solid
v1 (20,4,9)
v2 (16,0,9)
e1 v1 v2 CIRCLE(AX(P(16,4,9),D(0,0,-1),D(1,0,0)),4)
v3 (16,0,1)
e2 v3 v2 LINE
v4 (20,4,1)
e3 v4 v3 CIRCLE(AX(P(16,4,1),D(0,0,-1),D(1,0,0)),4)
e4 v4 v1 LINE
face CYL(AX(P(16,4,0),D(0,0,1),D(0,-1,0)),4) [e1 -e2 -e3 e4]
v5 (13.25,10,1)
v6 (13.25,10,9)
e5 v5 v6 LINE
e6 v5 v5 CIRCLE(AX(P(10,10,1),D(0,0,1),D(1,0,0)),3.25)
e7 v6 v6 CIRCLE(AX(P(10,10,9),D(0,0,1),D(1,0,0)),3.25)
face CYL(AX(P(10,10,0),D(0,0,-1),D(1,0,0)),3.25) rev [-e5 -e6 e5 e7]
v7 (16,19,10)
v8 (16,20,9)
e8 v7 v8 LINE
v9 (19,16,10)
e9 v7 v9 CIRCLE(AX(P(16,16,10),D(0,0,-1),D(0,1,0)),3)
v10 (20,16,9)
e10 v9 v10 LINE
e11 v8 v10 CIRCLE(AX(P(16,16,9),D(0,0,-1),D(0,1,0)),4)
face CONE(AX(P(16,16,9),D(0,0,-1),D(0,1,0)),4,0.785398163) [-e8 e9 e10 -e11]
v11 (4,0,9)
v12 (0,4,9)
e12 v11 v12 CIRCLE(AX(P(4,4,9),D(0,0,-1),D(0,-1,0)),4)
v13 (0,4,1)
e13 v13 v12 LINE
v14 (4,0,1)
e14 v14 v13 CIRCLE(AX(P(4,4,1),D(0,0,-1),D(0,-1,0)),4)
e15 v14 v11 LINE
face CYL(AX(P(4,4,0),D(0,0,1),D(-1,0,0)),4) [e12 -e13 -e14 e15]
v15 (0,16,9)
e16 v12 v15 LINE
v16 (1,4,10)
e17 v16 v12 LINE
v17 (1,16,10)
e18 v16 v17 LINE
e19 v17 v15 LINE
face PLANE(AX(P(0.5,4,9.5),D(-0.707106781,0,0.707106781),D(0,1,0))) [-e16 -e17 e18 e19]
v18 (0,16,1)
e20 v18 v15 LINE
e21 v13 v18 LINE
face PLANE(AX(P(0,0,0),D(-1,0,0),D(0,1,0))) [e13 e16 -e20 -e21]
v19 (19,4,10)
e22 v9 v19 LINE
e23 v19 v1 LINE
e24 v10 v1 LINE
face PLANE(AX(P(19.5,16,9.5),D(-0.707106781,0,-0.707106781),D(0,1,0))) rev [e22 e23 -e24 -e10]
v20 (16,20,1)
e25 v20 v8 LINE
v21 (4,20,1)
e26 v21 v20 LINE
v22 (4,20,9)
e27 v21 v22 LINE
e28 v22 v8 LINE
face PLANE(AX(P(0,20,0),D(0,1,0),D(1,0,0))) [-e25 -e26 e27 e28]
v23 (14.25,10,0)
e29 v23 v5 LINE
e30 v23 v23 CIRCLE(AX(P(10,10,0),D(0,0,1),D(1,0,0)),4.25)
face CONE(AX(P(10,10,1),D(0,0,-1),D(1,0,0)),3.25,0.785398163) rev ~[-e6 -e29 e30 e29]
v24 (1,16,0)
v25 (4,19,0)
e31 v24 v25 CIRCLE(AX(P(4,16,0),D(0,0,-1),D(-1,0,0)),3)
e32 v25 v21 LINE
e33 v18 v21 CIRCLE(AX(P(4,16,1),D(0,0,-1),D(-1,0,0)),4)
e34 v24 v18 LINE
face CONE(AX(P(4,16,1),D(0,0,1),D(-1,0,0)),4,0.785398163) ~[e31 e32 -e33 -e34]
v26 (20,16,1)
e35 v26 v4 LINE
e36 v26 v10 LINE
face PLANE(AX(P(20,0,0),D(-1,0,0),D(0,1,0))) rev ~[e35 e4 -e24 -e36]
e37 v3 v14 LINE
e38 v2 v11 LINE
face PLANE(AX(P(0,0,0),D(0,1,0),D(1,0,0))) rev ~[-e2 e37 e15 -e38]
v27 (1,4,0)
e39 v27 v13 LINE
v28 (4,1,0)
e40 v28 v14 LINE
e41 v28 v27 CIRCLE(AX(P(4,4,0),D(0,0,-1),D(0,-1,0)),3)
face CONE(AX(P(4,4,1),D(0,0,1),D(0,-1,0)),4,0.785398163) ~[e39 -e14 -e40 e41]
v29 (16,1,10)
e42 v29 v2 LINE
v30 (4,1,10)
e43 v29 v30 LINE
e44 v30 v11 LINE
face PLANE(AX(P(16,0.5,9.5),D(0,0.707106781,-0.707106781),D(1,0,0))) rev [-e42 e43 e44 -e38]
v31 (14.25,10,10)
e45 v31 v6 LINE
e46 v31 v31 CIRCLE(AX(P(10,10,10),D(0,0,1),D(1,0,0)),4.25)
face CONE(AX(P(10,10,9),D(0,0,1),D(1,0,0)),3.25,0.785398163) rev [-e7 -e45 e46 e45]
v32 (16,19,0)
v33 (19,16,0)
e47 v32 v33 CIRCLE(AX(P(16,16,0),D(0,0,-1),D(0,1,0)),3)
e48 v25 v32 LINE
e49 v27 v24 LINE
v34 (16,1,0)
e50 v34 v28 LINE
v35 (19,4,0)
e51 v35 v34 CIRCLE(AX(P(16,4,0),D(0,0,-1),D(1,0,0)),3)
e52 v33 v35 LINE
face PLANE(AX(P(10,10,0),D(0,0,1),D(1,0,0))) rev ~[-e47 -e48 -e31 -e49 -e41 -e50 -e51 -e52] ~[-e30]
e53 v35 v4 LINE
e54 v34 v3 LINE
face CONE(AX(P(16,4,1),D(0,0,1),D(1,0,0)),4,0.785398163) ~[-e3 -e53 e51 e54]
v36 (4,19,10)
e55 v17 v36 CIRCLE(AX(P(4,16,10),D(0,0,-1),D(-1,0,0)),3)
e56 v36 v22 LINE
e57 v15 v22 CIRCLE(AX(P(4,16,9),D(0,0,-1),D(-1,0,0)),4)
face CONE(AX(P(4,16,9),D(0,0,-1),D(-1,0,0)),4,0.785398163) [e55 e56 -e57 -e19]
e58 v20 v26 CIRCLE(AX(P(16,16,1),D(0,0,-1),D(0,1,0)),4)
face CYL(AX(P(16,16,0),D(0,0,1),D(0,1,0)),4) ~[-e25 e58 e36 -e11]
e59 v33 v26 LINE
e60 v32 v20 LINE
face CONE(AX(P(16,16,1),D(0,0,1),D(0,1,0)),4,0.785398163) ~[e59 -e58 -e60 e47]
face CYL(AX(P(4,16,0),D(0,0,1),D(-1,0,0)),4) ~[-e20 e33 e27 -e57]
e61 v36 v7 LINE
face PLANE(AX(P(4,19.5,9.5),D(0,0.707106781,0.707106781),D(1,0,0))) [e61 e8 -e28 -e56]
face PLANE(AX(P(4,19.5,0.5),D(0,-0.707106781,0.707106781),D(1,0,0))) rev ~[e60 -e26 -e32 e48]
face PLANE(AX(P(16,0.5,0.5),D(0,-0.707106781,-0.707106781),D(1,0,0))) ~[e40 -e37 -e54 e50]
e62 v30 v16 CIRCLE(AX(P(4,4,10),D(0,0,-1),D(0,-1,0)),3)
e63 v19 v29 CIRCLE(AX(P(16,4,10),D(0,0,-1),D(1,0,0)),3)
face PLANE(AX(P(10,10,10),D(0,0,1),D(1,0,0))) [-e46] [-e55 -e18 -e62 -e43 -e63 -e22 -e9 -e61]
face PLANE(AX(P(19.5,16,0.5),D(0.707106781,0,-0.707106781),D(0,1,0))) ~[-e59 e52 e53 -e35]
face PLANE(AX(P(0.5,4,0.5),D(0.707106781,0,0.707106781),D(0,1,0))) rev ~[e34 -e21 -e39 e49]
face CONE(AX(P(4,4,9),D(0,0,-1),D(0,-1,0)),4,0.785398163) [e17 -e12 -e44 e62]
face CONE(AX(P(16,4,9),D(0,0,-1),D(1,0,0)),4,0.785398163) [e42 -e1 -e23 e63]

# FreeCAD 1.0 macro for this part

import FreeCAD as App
import Part
import Sketcher

V = App.Vector


def edges_at(feature, points):
    """Names of the edges that pass closest to the given points."""
    edges = feature.Shape.Edges
    near = lambda p: min(range(len(edges)), key=lambda i: edges[i].distToShape(Part.Vertex(*p))[0])
    return sorted({f"Edge{near(p) + 1}" for p in points})


def add_polygon(sketch, points):
    """Adds a closed chain of lines whose ends are joined by coincident constraints."""
    first, n = sketch.GeometryCount, len(points)
    for a, b in zip(points, points[1:] + points[:1]):
        sketch.addGeometry(Part.LineSegment(App.Vector(*a, 0), App.Vector(*b, 0)), False)
    for i in range(n):
        sketch.addConstraint(Sketcher.Constraint("Coincident", first + i, 2, first + (i + 1) % n, 1))

doc = App.newDocument("Part")
body = doc.addObject("PartDesign::Body", "Body")

# Sketch on XY plane
sketch1 = doc.addObject("Sketcher::SketchObject", "Sketch")
body.addObject(sketch1)
sketch1.AttachmentSupport = (doc.XY_Plane, [""])
sketch1.MapMode = "FlatFace"
add_polygon(sketch1, [(0, 20), (0, 0), (20, 0), (20, 20)])  # lines 0-3
sketch1.addGeometry(Part.Circle(V(10, 10, 0), V(0, 0, 1), 3.2), False)  # 4
sketch1.addConstraint([
    Sketcher.Constraint("Vertical", 0),
    Sketcher.Constraint("Horizontal", 1),
    Sketcher.Constraint("Vertical", 2),
    Sketcher.Constraint("Horizontal", 3),
    Sketcher.Constraint("Coincident", 0, 2, -1, 1),
    Sketcher.Constraint("Equal", 3, 0),
    Sketcher.Constraint("Diameter", 4, 6.5),
    Sketcher.Constraint("DistanceX", 1, 1, 1, 2, 20.0),
    Sketcher.Constraint("DistanceX", -1, 1, 4, 3, 10.0),
    Sketcher.Constraint("DistanceY", -1, 1, 4, 3, 10.0),
])
pad1 = doc.addObject("PartDesign::Pad", "Pad")
body.addObject(pad1)
pad1.Profile = sketch1
pad1.Length = 10
doc.recompute()

fillet = doc.addObject("PartDesign::Fillet", "Fillet")
body.addObject(fillet)
fillet.Base = (pad1, edges_at(pad1, [
    (0, 20, 5),
    (20, 20, 5),
    (0, 0, 5),
    (20, 0, 5),
]))
fillet.Radius = 4
doc.recompute()

chamfer = doc.addObject("PartDesign::Chamfer", "Chamfer")
body.addObject(chamfer)
chamfer.Base = (fillet, edges_at(fillet, [
    (10, 20, 10),
    (1.172, 18.828, 10),
    (18.828, 18.828, 10),
    (0, 10, 10),
    (20, 10, 10),
    (1.172, 1.172, 10),
    (18.828, 1.172, 10),
    (10, 0, 10),
    (6.75, 10, 10),
]))
chamfer.Size = 1
doc.recompute()

chamfer2 = doc.addObject("PartDesign::Chamfer", "Chamfer001")
body.addObject(chamfer2)
chamfer2.Base = (chamfer, edges_at(chamfer, [
    (10, 20, 0),
    (1.172, 18.828, 0),
    (18.828, 18.828, 0),
    (0, 10, 0),
    (20, 10, 0),
    (1.172, 1.172, 0),
    (18.828, 1.172, 0),
    (10, 0, 0),
    (6.75, 10, 0),
]))
chamfer2.Size = 1

doc.recompute()
